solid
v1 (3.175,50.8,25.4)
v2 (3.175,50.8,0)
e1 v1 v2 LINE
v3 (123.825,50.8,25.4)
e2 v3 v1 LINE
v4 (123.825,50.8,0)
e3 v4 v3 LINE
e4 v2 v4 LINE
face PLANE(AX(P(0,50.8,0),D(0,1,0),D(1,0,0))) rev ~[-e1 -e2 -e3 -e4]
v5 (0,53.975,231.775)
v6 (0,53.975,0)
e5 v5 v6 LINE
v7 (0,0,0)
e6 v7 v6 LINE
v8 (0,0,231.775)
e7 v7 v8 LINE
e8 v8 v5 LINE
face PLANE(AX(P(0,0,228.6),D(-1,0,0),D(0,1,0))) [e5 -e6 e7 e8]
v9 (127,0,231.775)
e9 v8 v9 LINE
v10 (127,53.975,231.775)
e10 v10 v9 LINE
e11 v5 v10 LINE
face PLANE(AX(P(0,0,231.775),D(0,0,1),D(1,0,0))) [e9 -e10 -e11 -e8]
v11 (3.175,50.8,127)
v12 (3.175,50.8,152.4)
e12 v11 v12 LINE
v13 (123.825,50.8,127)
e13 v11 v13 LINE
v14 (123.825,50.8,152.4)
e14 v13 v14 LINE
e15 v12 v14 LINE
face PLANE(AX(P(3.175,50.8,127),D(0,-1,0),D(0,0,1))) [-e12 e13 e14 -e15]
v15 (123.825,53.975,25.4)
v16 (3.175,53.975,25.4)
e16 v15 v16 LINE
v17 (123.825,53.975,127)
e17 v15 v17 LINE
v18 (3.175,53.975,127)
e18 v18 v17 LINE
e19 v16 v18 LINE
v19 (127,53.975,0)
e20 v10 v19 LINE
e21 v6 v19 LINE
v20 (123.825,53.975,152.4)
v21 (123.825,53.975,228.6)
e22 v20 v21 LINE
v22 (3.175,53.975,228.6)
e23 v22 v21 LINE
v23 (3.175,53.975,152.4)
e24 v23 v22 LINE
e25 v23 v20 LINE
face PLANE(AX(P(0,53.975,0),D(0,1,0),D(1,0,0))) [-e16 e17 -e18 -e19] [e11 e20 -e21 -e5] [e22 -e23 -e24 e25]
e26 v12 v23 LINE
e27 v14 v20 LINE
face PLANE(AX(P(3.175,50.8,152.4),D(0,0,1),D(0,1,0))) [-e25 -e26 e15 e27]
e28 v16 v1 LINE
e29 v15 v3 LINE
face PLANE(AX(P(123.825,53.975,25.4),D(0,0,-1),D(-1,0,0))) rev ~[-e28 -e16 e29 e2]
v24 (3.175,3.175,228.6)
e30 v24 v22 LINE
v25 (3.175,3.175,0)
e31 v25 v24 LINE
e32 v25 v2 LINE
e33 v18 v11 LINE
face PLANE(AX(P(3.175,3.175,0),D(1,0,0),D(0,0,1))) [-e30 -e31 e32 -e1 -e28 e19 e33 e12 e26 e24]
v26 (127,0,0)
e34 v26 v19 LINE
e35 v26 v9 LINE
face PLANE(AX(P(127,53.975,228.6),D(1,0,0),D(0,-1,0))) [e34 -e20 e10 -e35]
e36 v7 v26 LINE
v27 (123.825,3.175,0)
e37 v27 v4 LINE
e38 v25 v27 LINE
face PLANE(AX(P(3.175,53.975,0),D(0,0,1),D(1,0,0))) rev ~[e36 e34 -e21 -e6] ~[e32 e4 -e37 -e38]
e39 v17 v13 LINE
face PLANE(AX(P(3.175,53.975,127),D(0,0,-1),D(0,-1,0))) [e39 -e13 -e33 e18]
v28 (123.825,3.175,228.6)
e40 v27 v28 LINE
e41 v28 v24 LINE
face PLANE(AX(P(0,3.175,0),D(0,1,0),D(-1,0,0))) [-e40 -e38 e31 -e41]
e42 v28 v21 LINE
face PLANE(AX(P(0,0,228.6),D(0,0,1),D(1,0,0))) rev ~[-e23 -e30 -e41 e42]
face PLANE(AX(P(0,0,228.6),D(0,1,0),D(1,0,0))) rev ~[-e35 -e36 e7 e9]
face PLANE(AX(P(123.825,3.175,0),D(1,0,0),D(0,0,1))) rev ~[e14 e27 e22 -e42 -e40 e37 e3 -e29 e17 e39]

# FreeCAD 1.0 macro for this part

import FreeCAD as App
import Part
import Sketcher
Q = App.Units.Quantity

doc = App.newDocument("Part")
body = doc.addObject("PartDesign::Body", "Body")

# Sketch on XZ plane
sketch1 = doc.addObject("Sketcher::SketchObject", "Sketch")
body.addObject(sketch1)
sketch1.AttachmentSupport = (doc.XZ_Plane, [""])
sketch1.MapMode = "FlatFace"
sketch1.addGeometry(Part.LineSegment(App.Vector(127, 0, 0), App.Vector(0, 0, 0)), False)
sketch1.addGeometry(Part.LineSegment(App.Vector(0, 0, 0), App.Vector(0, 228.6, 0)), False)
sketch1.addGeometry(Part.LineSegment(App.Vector(0, 228.6, 0), App.Vector(127, 228.6, 0)), False)
sketch1.addGeometry(Part.LineSegment(App.Vector(127, 228.6, 0), App.Vector(127, 0, 0)), False)
sketch1.addConstraint(Sketcher.Constraint("Coincident", 0, 2, 1, 1))
sketch1.addConstraint(Sketcher.Constraint("Coincident", 1, 2, 2, 1))
sketch1.addConstraint(Sketcher.Constraint("Coincident", 2, 2, 3, 1))
sketch1.addConstraint(Sketcher.Constraint("Coincident", 3, 2, 0, 1))
sketch1.addConstraint(Sketcher.Constraint("Horizontal", 0))
sketch1.addConstraint(Sketcher.Constraint("Vertical", 1))
sketch1.addConstraint(Sketcher.Constraint("Horizontal", 2))
sketch1.addConstraint(Sketcher.Constraint("Vertical", 3))
sketch1.addConstraint(Sketcher.Constraint("Coincident", 0, 2, -1, 1))
sketch1.addConstraint(Sketcher.Constraint("DistanceX", 0, 2, 0, 1, Q("5 in")))
sketch1.addConstraint(Sketcher.Constraint("DistanceY", 1, 1, 1, 2, Q("9 in")))
pad1 = doc.addObject("PartDesign::Pad", "Pad")
body.addObject(pad1)
pad1.Profile = sketch1
pad1.Length = Q("0.125 in")
pad1.Reversed = True

# Sketch on XZ plane
sketch2 = doc.addObject("Sketcher::SketchObject", "Sketch001")
body.addObject(sketch2)
sketch2.AttachmentSupport = (doc.XZ_Plane, [""])
sketch2.MapMode = "FlatFace"
sketch2.AttachmentOffset = App.Placement(App.Vector(0, 0, -0.125 * 25.4), App.Rotation())
sketch2.addGeometry(Part.LineSegment(App.Vector(3.175, 0, 0), App.Vector(0, 0, 0)), False)
sketch2.addGeometry(Part.LineSegment(App.Vector(0, 0, 0), App.Vector(0, 228.6, 0)), False)
sketch2.addGeometry(Part.LineSegment(App.Vector(0, 228.6, 0), App.Vector(3.175, 228.6, 0)), False)
sketch2.addGeometry(Part.LineSegment(App.Vector(3.175, 228.6, 0), App.Vector(3.175, 0, 0)), False)
sketch2.addConstraint(Sketcher.Constraint("Coincident", 0, 2, 1, 1))
sketch2.addConstraint(Sketcher.Constraint("Coincident", 1, 2, 2, 1))
sketch2.addConstraint(Sketcher.Constraint("Coincident", 2, 2, 3, 1))
sketch2.addConstraint(Sketcher.Constraint("Coincident", 3, 2, 0, 1))
sketch2.addConstraint(Sketcher.Constraint("Horizontal", 0))
sketch2.addConstraint(Sketcher.Constraint("Vertical", 1))
sketch2.addConstraint(Sketcher.Constraint("Horizontal", 2))
sketch2.addConstraint(Sketcher.Constraint("Vertical", 3))
sketch2.addConstraint(Sketcher.Constraint("Coincident", 0, 2, -1, 1))
sketch2.addConstraint(Sketcher.Constraint("DistanceY", 1, 1, 1, 2, Q("9 in")))
sketch2.addConstraint(Sketcher.Constraint("DistanceX", 0, 2, 0, 1, Q("0.125 in")))
pad2 = doc.addObject("PartDesign::Pad", "Pad001")
body.addObject(pad2)
pad2.Profile = sketch2
pad2.Length = Q("2 in")
pad2.Reversed = True

# Sketch on XZ plane
sketch3 = doc.addObject("Sketcher::SketchObject", "Sketch002")
body.addObject(sketch3)
sketch3.AttachmentSupport = (doc.XZ_Plane, [""])
sketch3.MapMode = "FlatFace"
sketch3.AttachmentOffset = App.Placement(App.Vector(0, 0, -0.125 * 25.4), App.Rotation())
sketch3.addGeometry(Part.LineSegment(App.Vector(123.825, 228.6, 0), App.Vector(127, 228.6, 0)), False)
sketch3.addGeometry(Part.LineSegment(App.Vector(127, 228.6, 0), App.Vector(127, 0, 0)), False)
sketch3.addGeometry(Part.LineSegment(App.Vector(127, 0, 0), App.Vector(123.825, 0, 0)), False)
sketch3.addGeometry(Part.LineSegment(App.Vector(123.825, 0, 0), App.Vector(123.825, 228.6, 0)), False)
sketch3.addConstraint(Sketcher.Constraint("Coincident", 0, 2, 1, 1))
sketch3.addConstraint(Sketcher.Constraint("Coincident", 1, 2, 2, 1))
sketch3.addConstraint(Sketcher.Constraint("Coincident", 2, 2, 3, 1))
sketch3.addConstraint(Sketcher.Constraint("Coincident", 3, 2, 0, 1))
sketch3.addConstraint(Sketcher.Constraint("Horizontal", 0))
sketch3.addConstraint(Sketcher.Constraint("Vertical", 1))
sketch3.addConstraint(Sketcher.Constraint("Horizontal", 2))
sketch3.addConstraint(Sketcher.Constraint("Vertical", 3))
sketch3.addConstraint(Sketcher.Constraint("PointOnObject", 1, 2, -1))
sketch3.addConstraint(Sketcher.Constraint("DistanceY", 1, 2, 1, 1, Q("9 in")))
sketch3.addConstraint(Sketcher.Constraint("DistanceX", 0, 1, 0, 2, Q("0.125 in")))
sketch3.addConstraint(Sketcher.Constraint("DistanceX", -1, 1, 0, 2, Q("5 in")))
pad3 = doc.addObject("PartDesign::Pad", "Pad002")
body.addObject(pad3)
pad3.Profile = sketch3
pad3.Length = Q("2 in")
pad3.Reversed = True

# Sketch on XY plane
sketch4 = doc.addObject("Sketcher::SketchObject", "Sketch003")
body.addObject(sketch4)
sketch4.AttachmentSupport = (doc.XY_Plane, [""])
sketch4.MapMode = "FlatFace"
sketch4.AttachmentOffset = App.Placement(App.Vector(0, 0, 9 * 25.4), App.Rotation())
sketch4.addGeometry(Part.LineSegment(App.Vector(0, 53.975, 0), App.Vector(0, 0, 0)), False)
sketch4.addGeometry(Part.LineSegment(App.Vector(0, 0, 0), App.Vector(127, 0, 0)), False)
sketch4.addGeometry(Part.LineSegment(App.Vector(127, 0, 0), App.Vector(127, 53.975, 0)), False)
sketch4.addGeometry(Part.LineSegment(App.Vector(127, 53.975, 0), App.Vector(0, 53.975, 0)), False)
sketch4.addConstraint(Sketcher.Constraint("Coincident", 0, 2, 1, 1))
sketch4.addConstraint(Sketcher.Constraint("Coincident", 1, 2, 2, 1))
sketch4.addConstraint(Sketcher.Constraint("Coincident", 2, 2, 3, 1))
sketch4.addConstraint(Sketcher.Constraint("Coincident", 3, 2, 0, 1))
sketch4.addConstraint(Sketcher.Constraint("Vertical", 0))
sketch4.addConstraint(Sketcher.Constraint("Horizontal", 1))
sketch4.addConstraint(Sketcher.Constraint("Vertical", 2))
sketch4.addConstraint(Sketcher.Constraint("Horizontal", 3))
sketch4.addConstraint(Sketcher.Constraint("Coincident", 0, 2, -1, 1))
sketch4.addConstraint(Sketcher.Constraint("DistanceX", 1, 1, 1, 2, Q("5 in")))
sketch4.addConstraint(Sketcher.Constraint("DistanceY", 0, 2, 0, 1, Q("2.125 in")))
pad4 = doc.addObject("PartDesign::Pad", "Pad003")
body.addObject(pad4)
pad4.Profile = sketch4
pad4.Length = Q("0.125 in")

# Sketch on YZ plane
sketch5 = doc.addObject("Sketcher::SketchObject", "Sketch004")
body.addObject(sketch5)
sketch5.AttachmentSupport = (doc.YZ_Plane, [""])
sketch5.MapMode = "FlatFace"
sketch5.AttachmentOffset = App.Placement(App.Vector(0, 0, 0.125 * 25.4), App.Rotation())
sketch5.addGeometry(Part.LineSegment(App.Vector(53.975, 127, 0), App.Vector(53.975, 152.4, 0)), False)
sketch5.addGeometry(Part.LineSegment(App.Vector(53.975, 152.4, 0), App.Vector(50.8, 152.4, 0)), False)
sketch5.addGeometry(Part.LineSegment(App.Vector(50.8, 152.4, 0), App.Vector(50.8, 127, 0)), False)
sketch5.addGeometry(Part.LineSegment(App.Vector(50.8, 127, 0), App.Vector(53.975, 127, 0)), False)
sketch5.addConstraint(Sketcher.Constraint("Coincident", 0, 2, 1, 1))
sketch5.addConstraint(Sketcher.Constraint("Coincident", 1, 2, 2, 1))
sketch5.addConstraint(Sketcher.Constraint("Coincident", 2, 2, 3, 1))
sketch5.addConstraint(Sketcher.Constraint("Coincident", 3, 2, 0, 1))
sketch5.addConstraint(Sketcher.Constraint("Vertical", 0))
sketch5.addConstraint(Sketcher.Constraint("Horizontal", 1))
sketch5.addConstraint(Sketcher.Constraint("Vertical", 2))
sketch5.addConstraint(Sketcher.Constraint("Horizontal", 3))
sketch5.addConstraint(Sketcher.Constraint("DistanceY", 0, 1, 0, 2, Q("1 in")))
sketch5.addConstraint(Sketcher.Constraint("DistanceX", 1, 2, 1, 1, Q("0.125 in")))
sketch5.addConstraint(Sketcher.Constraint("DistanceY", -1, 1, 0, 2, Q("6 in")))
sketch5.addConstraint(Sketcher.Constraint("DistanceX", -1, 1, 1, 2, Q("2 in")))
pad5 = doc.addObject("PartDesign::Pad", "Pad004")
body.addObject(pad5)
pad5.Profile = sketch5
pad5.Length = Q("4.75 in")

# Sketch on XZ plane
sketch6 = doc.addObject("Sketcher::SketchObject", "Sketch005")
body.addObject(sketch6)
sketch6.AttachmentSupport = (doc.XZ_Plane, [""])
sketch6.MapMode = "FlatFace"
sketch6.AttachmentOffset = App.Placement(App.Vector(0, 0, -2.125 * 25.4), App.Rotation())
sketch6.addGeometry(Part.LineSegment(App.Vector(3.175, 0, 0), App.Vector(3.175, 25.4, 0)), False)
sketch6.addGeometry(Part.LineSegment(App.Vector(3.175, 25.4, 0), App.Vector(123.825, 25.4, 0)), False)
sketch6.addGeometry(Part.LineSegment(App.Vector(123.825, 25.4, 0), App.Vector(123.825, 0, 0)), False)
sketch6.addGeometry(Part.LineSegment(App.Vector(123.825, 0, 0), App.Vector(3.175, 0, 0)), False)
sketch6.addConstraint(Sketcher.Constraint("Coincident", 0, 2, 1, 1))
sketch6.addConstraint(Sketcher.Constraint("Coincident", 1, 2, 2, 1))
sketch6.addConstraint(Sketcher.Constraint("Coincident", 2, 2, 3, 1))
sketch6.addConstraint(Sketcher.Constraint("Coincident", 3, 2, 0, 1))
sketch6.addConstraint(Sketcher.Constraint("Vertical", 0))
sketch6.addConstraint(Sketcher.Constraint("Horizontal", 1))
sketch6.addConstraint(Sketcher.Constraint("Vertical", 2))
sketch6.addConstraint(Sketcher.Constraint("Horizontal", 3))
sketch6.addConstraint(Sketcher.Constraint("PointOnObject", 2, 2, -1))
sketch6.addConstraint(Sketcher.Constraint("DistanceY", 0, 1, 0, 2, Q("1 in")))
sketch6.addConstraint(Sketcher.Constraint("DistanceX", 1, 1, 1, 2, Q("4.75 in")))
sketch6.addConstraint(Sketcher.Constraint("DistanceX", -1, 1, 0, 2, Q("0.125 in")))
pad6 = doc.addObject("PartDesign::Pad", "Pad005")
body.addObject(pad6)
pad6.Profile = sketch6
pad6.Length = Q("0.125 in")

doc.recompute()
